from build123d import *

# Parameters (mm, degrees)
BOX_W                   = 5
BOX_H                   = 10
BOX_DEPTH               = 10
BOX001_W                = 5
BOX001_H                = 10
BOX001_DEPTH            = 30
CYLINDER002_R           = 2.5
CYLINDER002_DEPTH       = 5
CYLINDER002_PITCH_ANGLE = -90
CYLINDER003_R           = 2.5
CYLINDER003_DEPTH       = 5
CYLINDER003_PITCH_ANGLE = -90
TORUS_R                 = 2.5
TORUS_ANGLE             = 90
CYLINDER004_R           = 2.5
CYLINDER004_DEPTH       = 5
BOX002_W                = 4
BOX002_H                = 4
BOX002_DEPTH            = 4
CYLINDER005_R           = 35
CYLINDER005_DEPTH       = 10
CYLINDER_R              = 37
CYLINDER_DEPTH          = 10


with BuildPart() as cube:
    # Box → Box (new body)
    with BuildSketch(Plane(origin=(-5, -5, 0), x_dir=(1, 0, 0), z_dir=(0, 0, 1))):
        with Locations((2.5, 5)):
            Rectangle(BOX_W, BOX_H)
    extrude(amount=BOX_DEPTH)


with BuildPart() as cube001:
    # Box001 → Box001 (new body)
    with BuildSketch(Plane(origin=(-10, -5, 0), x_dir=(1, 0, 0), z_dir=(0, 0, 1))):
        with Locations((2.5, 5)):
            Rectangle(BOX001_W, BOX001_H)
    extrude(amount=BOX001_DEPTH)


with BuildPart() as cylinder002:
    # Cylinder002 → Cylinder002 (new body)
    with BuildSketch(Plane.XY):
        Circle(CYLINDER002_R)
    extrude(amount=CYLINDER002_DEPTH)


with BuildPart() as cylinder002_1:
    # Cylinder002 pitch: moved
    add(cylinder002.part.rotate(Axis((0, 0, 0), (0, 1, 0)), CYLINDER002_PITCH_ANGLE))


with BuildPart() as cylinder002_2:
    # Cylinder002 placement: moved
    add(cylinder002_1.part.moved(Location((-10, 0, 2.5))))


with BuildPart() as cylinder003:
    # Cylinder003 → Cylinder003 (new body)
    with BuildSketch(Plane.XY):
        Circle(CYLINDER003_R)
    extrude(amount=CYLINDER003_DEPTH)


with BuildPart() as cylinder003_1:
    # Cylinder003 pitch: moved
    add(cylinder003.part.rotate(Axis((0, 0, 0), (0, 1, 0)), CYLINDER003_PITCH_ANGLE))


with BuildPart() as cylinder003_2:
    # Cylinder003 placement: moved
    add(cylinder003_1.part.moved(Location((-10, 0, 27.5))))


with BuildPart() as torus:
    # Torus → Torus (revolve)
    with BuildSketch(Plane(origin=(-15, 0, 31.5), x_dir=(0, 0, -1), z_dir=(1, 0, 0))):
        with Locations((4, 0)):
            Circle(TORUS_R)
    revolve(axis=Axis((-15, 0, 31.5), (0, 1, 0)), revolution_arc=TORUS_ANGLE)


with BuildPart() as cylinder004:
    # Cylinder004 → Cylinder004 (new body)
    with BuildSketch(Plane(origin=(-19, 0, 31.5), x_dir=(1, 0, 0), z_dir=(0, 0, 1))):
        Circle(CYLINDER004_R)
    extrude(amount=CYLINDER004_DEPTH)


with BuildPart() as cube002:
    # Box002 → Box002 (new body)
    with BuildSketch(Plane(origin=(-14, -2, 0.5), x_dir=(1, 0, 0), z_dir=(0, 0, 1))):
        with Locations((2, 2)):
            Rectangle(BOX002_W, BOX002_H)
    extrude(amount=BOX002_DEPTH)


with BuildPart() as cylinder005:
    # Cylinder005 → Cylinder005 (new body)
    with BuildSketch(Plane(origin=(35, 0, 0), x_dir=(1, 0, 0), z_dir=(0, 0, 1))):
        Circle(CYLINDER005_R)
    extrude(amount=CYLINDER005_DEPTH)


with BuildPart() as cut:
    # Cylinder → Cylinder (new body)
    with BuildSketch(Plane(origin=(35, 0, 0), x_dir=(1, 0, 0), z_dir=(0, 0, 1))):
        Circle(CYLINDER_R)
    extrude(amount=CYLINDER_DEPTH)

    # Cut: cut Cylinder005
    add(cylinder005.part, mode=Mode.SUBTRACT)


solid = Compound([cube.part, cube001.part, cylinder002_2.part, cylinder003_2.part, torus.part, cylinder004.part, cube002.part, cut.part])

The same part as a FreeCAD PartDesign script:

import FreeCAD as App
import Part
import Sketcher
from FreeCAD import Vector
Q = App.Units.Quantity


def add_polygon(sketch, points):
    """Adds a closed chain of lines whose ends are joined by coincident constraints."""
    first, n = sketch.GeometryCount, len(points)
    for a, b in zip(points, points[1:] + points[:1]):
        sketch.addGeometry(Part.LineSegment(App.Vector(*a, 0), App.Vector(*b, 0)), False)
    for i in range(n):
        sketch.addConstraint(Sketcher.Constraint("Coincident", first + i, 2, first + (i + 1) % n, 1))

doc = App.newDocument("Part")
body = doc.addObject("PartDesign::Body", "Body")

sketch1 = body.newObject("Sketcher::SketchObject", "Sketch")
sketch1.AttachmentSupport = (doc.getObject("XY_Plane"), [""])
sketch1.MapMode = "FlatFace"
add_polygon(sketch1, [(-5, 5), (-5, -5), (0, -5), (0, 5)])
sketch1.addConstraint([
    Sketcher.Constraint("Vertical", 0),
    Sketcher.Constraint("Horizontal", 1),
    Sketcher.Constraint("Vertical", 2),
    Sketcher.Constraint("Horizontal", 3),
    Sketcher.Constraint("Symmetric", 1, 2, 2, 2, -1, 1),
    Sketcher.Constraint("DistanceX", 1, 1, 1, 2, Q("5 mm")),
    Sketcher.Constraint("DistanceY", 0, 2, 0, 1, Q("10 mm")),
])
pad1 = body.newObject("PartDesign::Pad", "Pad")
pad1.Profile = sketch1
pad1.Length = 10
body2 = doc.addObject("PartDesign::Body", "Body001")

sketch2 = body2.newObject("Sketcher::SketchObject", "Sketch001")
sketch2.AttachmentSupport = (doc.getObject("XY_Plane001"), [""])
sketch2.MapMode = "FlatFace"
add_polygon(sketch2, [(-10, 5), (-10, -5), (-5, -5), (-5, 5)])
sketch2.addConstraint([
    Sketcher.Constraint("Vertical", 0),
    Sketcher.Constraint("Horizontal", 1),
    Sketcher.Constraint("Vertical", 2),
    Sketcher.Constraint("Horizontal", 3),
    Sketcher.Constraint("DistanceX", 1, 1, 1, 2, Q("5 mm")),
    Sketcher.Constraint("DistanceY", 0, 2, 0, 1, Q("10 mm")),
    Sketcher.Constraint("DistanceX", 0, 2, -1, 1, Q("10 mm")),
    Sketcher.Constraint("DistanceY", 0, 2, -1, 1, Q("5 mm")),
])
pad2 = body2.newObject("PartDesign::Pad", "Pad001")
pad2.Profile = sketch2
pad2.Length = 30
body3 = doc.addObject("PartDesign::Body", "Body002")

sketch3 = body3.newObject("Sketcher::SketchObject", "Sketch002")
sketch3.AttachmentSupport = (doc.getObject("XY_Plane002"), [""])
sketch3.MapMode = "FlatFace"
sketch3.addGeometry(Part.Circle(Vector(0, 0, 0), Vector(0, 0, 1), 2.5), False)
sketch3.addConstraint([
    Sketcher.Constraint("Coincident", 0, 3, -1, 1),
    Sketcher.Constraint("Diameter", 0, Q("5 mm")),
])
pad3 = body3.newObject("PartDesign::Pad", "Pad002")
pad3.Profile = sketch3
pad3.Length = 5
body4 = doc.addObject("PartDesign::Body", "Body003")
doc.recompute()

body3.Placement = App.Placement(Vector(0, 0, 0), App.Rotation(Vector(0, 1, 0), 270))
boolean = body4.newObject("PartDesign::Boolean", "Boolean")
boolean.Type = "Fuse"
boolean.addObjects([body3])
body5 = doc.addObject("PartDesign::Body", "Body004")
doc.recompute()

body4.Placement = App.Placement(Vector(-10, 0, 2.5), App.Rotation(Vector(0, 0, 1), 0))
boolean2 = body5.newObject("PartDesign::Boolean", "Boolean001")
boolean2.Type = "Fuse"
boolean2.addObjects([body4])
body6 = doc.addObject("PartDesign::Body", "Body005")

sketch4 = body6.newObject("Sketcher::SketchObject", "Sketch003")
sketch4.AttachmentSupport = (doc.getObject("XY_Plane005"), [""])
sketch4.MapMode = "FlatFace"
sketch4.addGeometry(Part.Circle(Vector(0, 0, 0), Vector(0, 0, 1), 2.5), False)
sketch4.addConstraint([
    Sketcher.Constraint("Coincident", 0, 3, -1, 1),
    Sketcher.Constraint("Diameter", 0, Q("5 mm")),
])
pad4 = body6.newObject("PartDesign::Pad", "Pad003")
pad4.Profile = sketch4
pad4.Length = 5
body7 = doc.addObject("PartDesign::Body", "Body006")
doc.recompute()

body6.Placement = App.Placement(Vector(0, 0, 0), App.Rotation(Vector(0, 1, 0), 270))
boolean3 = body7.newObject("PartDesign::Boolean", "Boolean002")
boolean3.Type = "Fuse"
boolean3.addObjects([body6])
body8 = doc.addObject("PartDesign::Body", "Body007")
doc.recompute()

body7.Placement = App.Placement(Vector(-10, 0, 27.5), App.Rotation(Vector(0, 0, 1), 0))
boolean4 = body8.newObject("PartDesign::Boolean", "Boolean003")
boolean4.Type = "Fuse"
boolean4.addObjects([body7])
body9 = doc.addObject("PartDesign::Body", "Body008")

sketch5 = body9.newObject("Sketcher::SketchObject", "Sketch004")
sketch5.AttachmentSupport = (doc.getObject("YZ_Plane008"), [""])
sketch5.MapMode = "FlatFace"
sketch5.AttachmentOffset = App.Placement(Vector(0, 0, -15), App.Rotation())
sketch5.addGeometry(Part.Circle(Vector(0, 27.5, 0), Vector(0, 0, 1), 2.5), False)
sketch5.addGeometry(Part.LineSegment(Vector(0, 31.5, 0), Vector(10, 31.5, 0)), True)
sketch5.addConstraint([
    Sketcher.Constraint("Horizontal", 1),
    Sketcher.Constraint("PointOnObject", 0, 3, -2),
    Sketcher.Constraint("PointOnObject", 1, 1, -2),
    Sketcher.Constraint("Diameter", 0, Q("5 mm")),
    Sketcher.Constraint("DistanceX", 1, 1, 1, 2, Q("10 mm")),
    Sketcher.Constraint("DistanceY", 0, 3, 1, 1, Q("4 mm")),
    Sketcher.Constraint("DistanceY", -1, 1, 0, 3, Q("27.5 mm")),
])
revolution = body9.newObject("PartDesign::Revolution", "Revolution")
revolution.Profile = sketch5
revolution.ReferenceAxis = (sketch5, ["Axis0"])
revolution.Angle = 90
body10 = doc.addObject("PartDesign::Body", "Body009")

sketch6 = body10.newObject("Sketcher::SketchObject", "Sketch005")
sketch6.AttachmentSupport = (doc.getObject("XY_Plane009"), [""])
sketch6.MapMode = "FlatFace"
sketch6.AttachmentOffset = App.Placement(Vector(0, 0, 31.5), App.Rotation())
sketch6.addGeometry(Part.Circle(Vector(-19, 0, 0), Vector(0, 0, 1), 2.5), False)
sketch6.addConstraint([
    Sketcher.Constraint("PointOnObject", 0, 3, -1),
    Sketcher.Constraint("Diameter", 0, Q("5 mm")),
    Sketcher.Constraint("DistanceX", 0, 3, -1, 1, Q("19 mm")),
])
pad5 = body10.newObject("PartDesign::Pad", "Pad004")
pad5.Profile = sketch6
pad5.Length = 5
body11 = doc.addObject("PartDesign::Body", "Body010")

sketch7 = body11.newObject("Sketcher::SketchObject", "Sketch006")
sketch7.AttachmentSupport = (doc.getObject("XY_Plane010"), [""])
sketch7.MapMode = "FlatFace"
sketch7.AttachmentOffset = App.Placement(Vector(0, 0, 0.5), App.Rotation())
add_polygon(sketch7, [(-14, 2), (-14, -2), (-10, -2), (-10, 2)])
sketch7.addConstraint([
    Sketcher.Constraint("Vertical", 0),
    Sketcher.Constraint("Horizontal", 1),
    Sketcher.Constraint("Vertical", 2),
    Sketcher.Constraint("Horizontal", 3),
    Sketcher.Constraint("Equal", 3, 0),
    Sketcher.Constraint("DistanceX", 1, 1, 1, 2, Q("4 mm")),
    Sketcher.Constraint("DistanceX", 0, 2, -1, 1, Q("14 mm")),
    Sketcher.Constraint("DistanceY", 0, 2, -1, 1, Q("2 mm")),
])
pad6 = body11.newObject("PartDesign::Pad", "Pad005")
pad6.Profile = sketch7
pad6.Length = 4
body12 = doc.addObject("PartDesign::Body", "Body011")

sketch8 = body12.newObject("Sketcher::SketchObject", "Sketch007")
sketch8.AttachmentSupport = (doc.getObject("XY_Plane011"), [""])
sketch8.MapMode = "FlatFace"
sketch8.addGeometry(Part.Circle(Vector(35, 0, 0), Vector(0, 0, 1), 35), False)
sketch8.addConstraint([
    Sketcher.Constraint("PointOnObject", 0, 3, -1),
    Sketcher.Constraint("Diameter", 0, Q("70 mm")),
    Sketcher.Constraint("DistanceX", -1, 1, 0, 3, Q("35 mm")),
])
pad7 = body12.newObject("PartDesign::Pad", "Pad006")
pad7.Profile = sketch8
pad7.Length = 10
body13 = doc.addObject("PartDesign::Body", "Body012")

sketch9 = body13.newObject("Sketcher::SketchObject", "Sketch008")
sketch9.AttachmentSupport = (doc.getObject("XY_Plane012"), [""])
sketch9.MapMode = "FlatFace"
sketch9.addGeometry(Part.Circle(Vector(35, 0, 0), Vector(0, 0, 1), 37), False)
sketch9.addConstraint([
    Sketcher.Constraint("PointOnObject", 0, 3, -1),
    Sketcher.Constraint("Diameter", 0, Q("74 mm")),
    Sketcher.Constraint("DistanceX", -1, 1, 0, 3, Q("35 mm")),
])
pad8 = body13.newObject("PartDesign::Pad", "Pad007")
pad8.Profile = sketch9
pad8.Length = 10
doc.recompute()

boolean5 = body13.newObject("PartDesign::Boolean", "Boolean004")
boolean5.Type = "Cut"
boolean5.addObjects([body12])

doc.recompute()
